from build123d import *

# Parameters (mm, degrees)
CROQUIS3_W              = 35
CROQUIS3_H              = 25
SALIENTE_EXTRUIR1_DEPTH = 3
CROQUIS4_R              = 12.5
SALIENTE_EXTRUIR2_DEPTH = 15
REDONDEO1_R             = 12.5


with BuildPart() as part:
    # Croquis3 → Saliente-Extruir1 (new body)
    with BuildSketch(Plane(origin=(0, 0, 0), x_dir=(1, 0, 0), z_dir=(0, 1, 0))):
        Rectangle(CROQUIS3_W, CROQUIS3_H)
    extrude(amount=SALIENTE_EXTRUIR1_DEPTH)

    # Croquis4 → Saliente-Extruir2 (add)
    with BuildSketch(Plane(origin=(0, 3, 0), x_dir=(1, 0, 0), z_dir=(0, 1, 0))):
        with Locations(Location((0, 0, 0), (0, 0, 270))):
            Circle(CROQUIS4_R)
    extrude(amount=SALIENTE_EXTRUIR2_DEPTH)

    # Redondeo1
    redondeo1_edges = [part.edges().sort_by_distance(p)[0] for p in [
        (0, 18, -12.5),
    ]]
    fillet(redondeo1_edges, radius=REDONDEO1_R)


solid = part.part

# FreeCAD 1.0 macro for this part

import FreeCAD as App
import Part
import Sketcher


def edges_at(feature, points):
    """Names of the edges that pass closest to the given points."""
    edges = feature.Shape.Edges
    near = lambda p: min(range(len(edges)), key=lambda i: edges[i].distToShape(Part.Vertex(*p))[0])
    return sorted({f"Edge{near(p) + 1}" for p in points})


def add_polygon(sketch, points):
    """Adds a closed chain of lines whose ends are joined by coincident constraints."""
    first, n = sketch.GeometryCount, len(points)
    for a, b in zip(points, points[1:] + points[:1]):
        sketch.addGeometry(Part.LineSegment(App.Vector(*a, 0), App.Vector(*b, 0)), False)
    for i in range(n):
        sketch.addConstraint(Sketcher.Constraint("Coincident", first + i, 2, first + (i + 1) % n, 1))

doc = App.newDocument("Part")
params = doc.addObject("Spreadsheet::Sheet", "Params")
for row, (alias, value) in enumerate([
    ("sketch1_width", "35 mm"),
    ("sketch1_height", "25 mm"),
    ("pad1_length", "3 mm"),
    ("sketch2_diameter", "25 mm"),
    ("pad2_length", "15 mm"),
    ("fillet_radius", "12.5 mm"),
], start=1):
    params.set(f"A{row}", alias)
    params.set(f"B{row}", "=" + value)
    params.setAlias(f"B{row}", alias)

body = doc.addObject("PartDesign::Body", "Body")

sketch1 = body.newObject("Sketcher::SketchObject", "Sketch")
sketch1.AttachmentSupport = (doc.getObject("XZ_Plane"), [""])
sketch1.MapMode = "FlatFace"
add_polygon(sketch1, [(-18, -12), (-18, 12), (18, 12), (18, -12)])
sketch1.addConstraint([
    Sketcher.Constraint("Vertical", 0),
    Sketcher.Constraint("Horizontal", 1),
    Sketcher.Constraint("Vertical", 2),
    Sketcher.Constraint("Horizontal", 3),
    Sketcher.Constraint("Symmetric", 0, 2, 2, 2, -1, 1),
    Sketcher.Constraint("DistanceX", 1, 1, 1, 2, 35.0),
    Sketcher.Constraint("DistanceY", 0, 1, 0, 2, 25.0),
])
sketch1.setExpression("Constraints[9]", "Params.sketch1_width")
sketch1.setExpression("Constraints[10]", "Params.sketch1_height")
pad1 = body.newObject("PartDesign::Pad", "Pad")
pad1.Profile = sketch1
pad1.setExpression("Length", "Params.pad1_length")
pad1.Reversed = True

sketch2 = body.newObject("Sketcher::SketchObject", "Sketch001")
sketch2.AttachmentSupport = (doc.getObject("XZ_Plane"), [""])
sketch2.MapMode = "FlatFace"
sketch2.AttachmentOffset = App.Placement(App.Vector(0, 0, -3), App.Rotation())
sketch2.addGeometry(Part.Circle(App.Vector(0, 0, 0), App.Vector(0, 0, 1), 12), False)
sketch2.addConstraint([
    Sketcher.Constraint("Coincident", 0, 3, -1, 1),
    Sketcher.Constraint("Diameter", 0, 25.0),
])
sketch2.setExpression("Constraints[1]", "Params.sketch2_diameter")
pad2 = body.newObject("PartDesign::Pad", "Pad001")
pad2.Profile = sketch2
pad2.setExpression("Length", "Params.pad2_length")
pad2.Reversed = True
doc.recompute()

fillet = body.newObject("PartDesign::Fillet", "Fillet")
fillet.Base = (pad2, edges_at(pad2, [(0, 18, -12.5)]))
fillet.setExpression("Radius", "Params.fillet_radius")

doc.recompute()
